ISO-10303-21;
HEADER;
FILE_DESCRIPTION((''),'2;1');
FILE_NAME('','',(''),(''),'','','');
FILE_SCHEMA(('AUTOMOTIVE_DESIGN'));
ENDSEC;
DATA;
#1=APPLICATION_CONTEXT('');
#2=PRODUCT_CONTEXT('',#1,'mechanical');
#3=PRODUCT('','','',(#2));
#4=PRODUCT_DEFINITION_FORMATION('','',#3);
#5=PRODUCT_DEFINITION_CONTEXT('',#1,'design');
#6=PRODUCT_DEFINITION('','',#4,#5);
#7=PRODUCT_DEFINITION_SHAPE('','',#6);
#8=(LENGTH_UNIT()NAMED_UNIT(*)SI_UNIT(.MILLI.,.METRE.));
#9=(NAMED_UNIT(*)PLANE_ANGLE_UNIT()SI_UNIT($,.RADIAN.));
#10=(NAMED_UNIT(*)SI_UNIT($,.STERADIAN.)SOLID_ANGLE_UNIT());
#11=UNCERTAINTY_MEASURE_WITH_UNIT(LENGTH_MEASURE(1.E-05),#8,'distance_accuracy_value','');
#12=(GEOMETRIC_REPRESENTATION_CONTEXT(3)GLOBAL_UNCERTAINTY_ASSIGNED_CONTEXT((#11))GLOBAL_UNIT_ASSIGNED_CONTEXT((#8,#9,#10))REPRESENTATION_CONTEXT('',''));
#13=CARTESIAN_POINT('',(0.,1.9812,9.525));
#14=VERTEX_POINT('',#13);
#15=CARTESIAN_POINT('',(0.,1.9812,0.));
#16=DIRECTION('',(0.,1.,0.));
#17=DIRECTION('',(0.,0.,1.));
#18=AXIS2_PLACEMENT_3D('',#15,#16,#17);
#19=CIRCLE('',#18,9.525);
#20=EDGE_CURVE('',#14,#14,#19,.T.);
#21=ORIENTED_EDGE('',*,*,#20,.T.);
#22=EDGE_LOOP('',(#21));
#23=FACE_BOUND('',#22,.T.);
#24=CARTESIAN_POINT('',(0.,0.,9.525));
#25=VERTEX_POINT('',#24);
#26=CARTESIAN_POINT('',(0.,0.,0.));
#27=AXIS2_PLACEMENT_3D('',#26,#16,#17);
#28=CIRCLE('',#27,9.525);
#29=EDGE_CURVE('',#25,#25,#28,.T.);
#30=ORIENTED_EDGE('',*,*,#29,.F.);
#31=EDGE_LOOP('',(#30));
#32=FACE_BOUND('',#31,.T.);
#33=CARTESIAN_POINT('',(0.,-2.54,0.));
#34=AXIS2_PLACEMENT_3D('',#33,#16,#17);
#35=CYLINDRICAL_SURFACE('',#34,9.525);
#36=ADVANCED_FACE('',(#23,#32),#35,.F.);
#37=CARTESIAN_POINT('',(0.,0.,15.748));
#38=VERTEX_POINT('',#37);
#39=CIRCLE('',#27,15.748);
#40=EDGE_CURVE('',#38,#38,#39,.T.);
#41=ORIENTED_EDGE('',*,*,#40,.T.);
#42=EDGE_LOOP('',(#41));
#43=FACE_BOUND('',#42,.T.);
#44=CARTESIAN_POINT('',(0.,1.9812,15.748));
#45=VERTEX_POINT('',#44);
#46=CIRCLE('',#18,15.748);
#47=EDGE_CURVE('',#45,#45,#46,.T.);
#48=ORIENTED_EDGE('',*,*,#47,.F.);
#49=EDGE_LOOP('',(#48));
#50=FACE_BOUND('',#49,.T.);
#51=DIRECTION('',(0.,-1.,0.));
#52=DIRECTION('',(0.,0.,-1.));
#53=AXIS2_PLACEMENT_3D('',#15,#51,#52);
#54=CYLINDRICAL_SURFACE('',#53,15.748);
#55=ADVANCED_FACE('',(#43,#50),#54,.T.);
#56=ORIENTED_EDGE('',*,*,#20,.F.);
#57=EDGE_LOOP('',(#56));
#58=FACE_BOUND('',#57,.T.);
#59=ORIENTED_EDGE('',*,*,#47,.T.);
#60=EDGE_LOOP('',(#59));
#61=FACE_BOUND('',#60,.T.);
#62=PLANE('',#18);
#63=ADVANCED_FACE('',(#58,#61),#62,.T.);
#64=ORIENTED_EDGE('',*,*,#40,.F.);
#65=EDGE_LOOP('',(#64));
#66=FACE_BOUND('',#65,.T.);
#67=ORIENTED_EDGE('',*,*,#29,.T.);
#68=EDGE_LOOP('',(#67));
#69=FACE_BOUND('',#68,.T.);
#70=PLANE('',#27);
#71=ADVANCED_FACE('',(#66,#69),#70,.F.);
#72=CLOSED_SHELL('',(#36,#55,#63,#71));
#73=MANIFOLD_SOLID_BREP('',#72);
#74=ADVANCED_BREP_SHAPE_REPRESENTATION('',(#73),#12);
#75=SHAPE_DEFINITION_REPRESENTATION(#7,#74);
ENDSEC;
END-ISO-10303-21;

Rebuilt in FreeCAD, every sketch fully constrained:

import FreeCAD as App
import Part
import Sketcher

V = App.Vector
Q = App.Units.Quantity

doc = App.newDocument("Part")
body = doc.addObject("PartDesign::Body", "Body")

sketch1 = doc.addObject("Sketcher::SketchObject", "Sketch")
body.addObject(sketch1)
sketch1.AttachmentSupport = (doc.XZ_Plane, [""])
sketch1.MapMode = "FlatFace"
sketch1.addGeometry(Part.Circle(V(0, 0, 0), V(0, 0, 1), 16), False)
sketch1.addConstraint([
    Sketcher.Constraint("Coincident", 0, 3, -1, 1),
    Sketcher.Constraint("Diameter", 0, Q("1.24 in")),
])
pad1 = doc.addObject("PartDesign::Pad", "Pad")
body.addObject(pad1)
pad1.Profile = sketch1
pad1.Length = Q("0.078 in")
pad1.Reversed = True

sketch2 = doc.addObject("Sketcher::SketchObject", "Sketch001")
body.addObject(sketch2)
sketch2.AttachmentSupport = (doc.XZ_Plane, [""])
sketch2.MapMode = "FlatFace"
sketch2.AttachmentOffset = App.Placement(V(0, 0, -0.078 * 25.4), App.Rotation())
sketch2.addGeometry(Part.Circle(V(0, 0, 0), V(0, 0, 1), 10), False)
sketch2.addConstraint([
    Sketcher.Constraint("Coincident", 0, 3, -1, 1),
    Sketcher.Constraint("Diameter", 0, Q("0.75 in")),
])
pocket1 = doc.addObject("PartDesign::Pocket", "Pocket")
body.addObject(pocket1)
pocket1.Profile = sketch2
pocket1.Length = Q("0.178 in")
pocket1.Reversed = True

doc.recompute()
